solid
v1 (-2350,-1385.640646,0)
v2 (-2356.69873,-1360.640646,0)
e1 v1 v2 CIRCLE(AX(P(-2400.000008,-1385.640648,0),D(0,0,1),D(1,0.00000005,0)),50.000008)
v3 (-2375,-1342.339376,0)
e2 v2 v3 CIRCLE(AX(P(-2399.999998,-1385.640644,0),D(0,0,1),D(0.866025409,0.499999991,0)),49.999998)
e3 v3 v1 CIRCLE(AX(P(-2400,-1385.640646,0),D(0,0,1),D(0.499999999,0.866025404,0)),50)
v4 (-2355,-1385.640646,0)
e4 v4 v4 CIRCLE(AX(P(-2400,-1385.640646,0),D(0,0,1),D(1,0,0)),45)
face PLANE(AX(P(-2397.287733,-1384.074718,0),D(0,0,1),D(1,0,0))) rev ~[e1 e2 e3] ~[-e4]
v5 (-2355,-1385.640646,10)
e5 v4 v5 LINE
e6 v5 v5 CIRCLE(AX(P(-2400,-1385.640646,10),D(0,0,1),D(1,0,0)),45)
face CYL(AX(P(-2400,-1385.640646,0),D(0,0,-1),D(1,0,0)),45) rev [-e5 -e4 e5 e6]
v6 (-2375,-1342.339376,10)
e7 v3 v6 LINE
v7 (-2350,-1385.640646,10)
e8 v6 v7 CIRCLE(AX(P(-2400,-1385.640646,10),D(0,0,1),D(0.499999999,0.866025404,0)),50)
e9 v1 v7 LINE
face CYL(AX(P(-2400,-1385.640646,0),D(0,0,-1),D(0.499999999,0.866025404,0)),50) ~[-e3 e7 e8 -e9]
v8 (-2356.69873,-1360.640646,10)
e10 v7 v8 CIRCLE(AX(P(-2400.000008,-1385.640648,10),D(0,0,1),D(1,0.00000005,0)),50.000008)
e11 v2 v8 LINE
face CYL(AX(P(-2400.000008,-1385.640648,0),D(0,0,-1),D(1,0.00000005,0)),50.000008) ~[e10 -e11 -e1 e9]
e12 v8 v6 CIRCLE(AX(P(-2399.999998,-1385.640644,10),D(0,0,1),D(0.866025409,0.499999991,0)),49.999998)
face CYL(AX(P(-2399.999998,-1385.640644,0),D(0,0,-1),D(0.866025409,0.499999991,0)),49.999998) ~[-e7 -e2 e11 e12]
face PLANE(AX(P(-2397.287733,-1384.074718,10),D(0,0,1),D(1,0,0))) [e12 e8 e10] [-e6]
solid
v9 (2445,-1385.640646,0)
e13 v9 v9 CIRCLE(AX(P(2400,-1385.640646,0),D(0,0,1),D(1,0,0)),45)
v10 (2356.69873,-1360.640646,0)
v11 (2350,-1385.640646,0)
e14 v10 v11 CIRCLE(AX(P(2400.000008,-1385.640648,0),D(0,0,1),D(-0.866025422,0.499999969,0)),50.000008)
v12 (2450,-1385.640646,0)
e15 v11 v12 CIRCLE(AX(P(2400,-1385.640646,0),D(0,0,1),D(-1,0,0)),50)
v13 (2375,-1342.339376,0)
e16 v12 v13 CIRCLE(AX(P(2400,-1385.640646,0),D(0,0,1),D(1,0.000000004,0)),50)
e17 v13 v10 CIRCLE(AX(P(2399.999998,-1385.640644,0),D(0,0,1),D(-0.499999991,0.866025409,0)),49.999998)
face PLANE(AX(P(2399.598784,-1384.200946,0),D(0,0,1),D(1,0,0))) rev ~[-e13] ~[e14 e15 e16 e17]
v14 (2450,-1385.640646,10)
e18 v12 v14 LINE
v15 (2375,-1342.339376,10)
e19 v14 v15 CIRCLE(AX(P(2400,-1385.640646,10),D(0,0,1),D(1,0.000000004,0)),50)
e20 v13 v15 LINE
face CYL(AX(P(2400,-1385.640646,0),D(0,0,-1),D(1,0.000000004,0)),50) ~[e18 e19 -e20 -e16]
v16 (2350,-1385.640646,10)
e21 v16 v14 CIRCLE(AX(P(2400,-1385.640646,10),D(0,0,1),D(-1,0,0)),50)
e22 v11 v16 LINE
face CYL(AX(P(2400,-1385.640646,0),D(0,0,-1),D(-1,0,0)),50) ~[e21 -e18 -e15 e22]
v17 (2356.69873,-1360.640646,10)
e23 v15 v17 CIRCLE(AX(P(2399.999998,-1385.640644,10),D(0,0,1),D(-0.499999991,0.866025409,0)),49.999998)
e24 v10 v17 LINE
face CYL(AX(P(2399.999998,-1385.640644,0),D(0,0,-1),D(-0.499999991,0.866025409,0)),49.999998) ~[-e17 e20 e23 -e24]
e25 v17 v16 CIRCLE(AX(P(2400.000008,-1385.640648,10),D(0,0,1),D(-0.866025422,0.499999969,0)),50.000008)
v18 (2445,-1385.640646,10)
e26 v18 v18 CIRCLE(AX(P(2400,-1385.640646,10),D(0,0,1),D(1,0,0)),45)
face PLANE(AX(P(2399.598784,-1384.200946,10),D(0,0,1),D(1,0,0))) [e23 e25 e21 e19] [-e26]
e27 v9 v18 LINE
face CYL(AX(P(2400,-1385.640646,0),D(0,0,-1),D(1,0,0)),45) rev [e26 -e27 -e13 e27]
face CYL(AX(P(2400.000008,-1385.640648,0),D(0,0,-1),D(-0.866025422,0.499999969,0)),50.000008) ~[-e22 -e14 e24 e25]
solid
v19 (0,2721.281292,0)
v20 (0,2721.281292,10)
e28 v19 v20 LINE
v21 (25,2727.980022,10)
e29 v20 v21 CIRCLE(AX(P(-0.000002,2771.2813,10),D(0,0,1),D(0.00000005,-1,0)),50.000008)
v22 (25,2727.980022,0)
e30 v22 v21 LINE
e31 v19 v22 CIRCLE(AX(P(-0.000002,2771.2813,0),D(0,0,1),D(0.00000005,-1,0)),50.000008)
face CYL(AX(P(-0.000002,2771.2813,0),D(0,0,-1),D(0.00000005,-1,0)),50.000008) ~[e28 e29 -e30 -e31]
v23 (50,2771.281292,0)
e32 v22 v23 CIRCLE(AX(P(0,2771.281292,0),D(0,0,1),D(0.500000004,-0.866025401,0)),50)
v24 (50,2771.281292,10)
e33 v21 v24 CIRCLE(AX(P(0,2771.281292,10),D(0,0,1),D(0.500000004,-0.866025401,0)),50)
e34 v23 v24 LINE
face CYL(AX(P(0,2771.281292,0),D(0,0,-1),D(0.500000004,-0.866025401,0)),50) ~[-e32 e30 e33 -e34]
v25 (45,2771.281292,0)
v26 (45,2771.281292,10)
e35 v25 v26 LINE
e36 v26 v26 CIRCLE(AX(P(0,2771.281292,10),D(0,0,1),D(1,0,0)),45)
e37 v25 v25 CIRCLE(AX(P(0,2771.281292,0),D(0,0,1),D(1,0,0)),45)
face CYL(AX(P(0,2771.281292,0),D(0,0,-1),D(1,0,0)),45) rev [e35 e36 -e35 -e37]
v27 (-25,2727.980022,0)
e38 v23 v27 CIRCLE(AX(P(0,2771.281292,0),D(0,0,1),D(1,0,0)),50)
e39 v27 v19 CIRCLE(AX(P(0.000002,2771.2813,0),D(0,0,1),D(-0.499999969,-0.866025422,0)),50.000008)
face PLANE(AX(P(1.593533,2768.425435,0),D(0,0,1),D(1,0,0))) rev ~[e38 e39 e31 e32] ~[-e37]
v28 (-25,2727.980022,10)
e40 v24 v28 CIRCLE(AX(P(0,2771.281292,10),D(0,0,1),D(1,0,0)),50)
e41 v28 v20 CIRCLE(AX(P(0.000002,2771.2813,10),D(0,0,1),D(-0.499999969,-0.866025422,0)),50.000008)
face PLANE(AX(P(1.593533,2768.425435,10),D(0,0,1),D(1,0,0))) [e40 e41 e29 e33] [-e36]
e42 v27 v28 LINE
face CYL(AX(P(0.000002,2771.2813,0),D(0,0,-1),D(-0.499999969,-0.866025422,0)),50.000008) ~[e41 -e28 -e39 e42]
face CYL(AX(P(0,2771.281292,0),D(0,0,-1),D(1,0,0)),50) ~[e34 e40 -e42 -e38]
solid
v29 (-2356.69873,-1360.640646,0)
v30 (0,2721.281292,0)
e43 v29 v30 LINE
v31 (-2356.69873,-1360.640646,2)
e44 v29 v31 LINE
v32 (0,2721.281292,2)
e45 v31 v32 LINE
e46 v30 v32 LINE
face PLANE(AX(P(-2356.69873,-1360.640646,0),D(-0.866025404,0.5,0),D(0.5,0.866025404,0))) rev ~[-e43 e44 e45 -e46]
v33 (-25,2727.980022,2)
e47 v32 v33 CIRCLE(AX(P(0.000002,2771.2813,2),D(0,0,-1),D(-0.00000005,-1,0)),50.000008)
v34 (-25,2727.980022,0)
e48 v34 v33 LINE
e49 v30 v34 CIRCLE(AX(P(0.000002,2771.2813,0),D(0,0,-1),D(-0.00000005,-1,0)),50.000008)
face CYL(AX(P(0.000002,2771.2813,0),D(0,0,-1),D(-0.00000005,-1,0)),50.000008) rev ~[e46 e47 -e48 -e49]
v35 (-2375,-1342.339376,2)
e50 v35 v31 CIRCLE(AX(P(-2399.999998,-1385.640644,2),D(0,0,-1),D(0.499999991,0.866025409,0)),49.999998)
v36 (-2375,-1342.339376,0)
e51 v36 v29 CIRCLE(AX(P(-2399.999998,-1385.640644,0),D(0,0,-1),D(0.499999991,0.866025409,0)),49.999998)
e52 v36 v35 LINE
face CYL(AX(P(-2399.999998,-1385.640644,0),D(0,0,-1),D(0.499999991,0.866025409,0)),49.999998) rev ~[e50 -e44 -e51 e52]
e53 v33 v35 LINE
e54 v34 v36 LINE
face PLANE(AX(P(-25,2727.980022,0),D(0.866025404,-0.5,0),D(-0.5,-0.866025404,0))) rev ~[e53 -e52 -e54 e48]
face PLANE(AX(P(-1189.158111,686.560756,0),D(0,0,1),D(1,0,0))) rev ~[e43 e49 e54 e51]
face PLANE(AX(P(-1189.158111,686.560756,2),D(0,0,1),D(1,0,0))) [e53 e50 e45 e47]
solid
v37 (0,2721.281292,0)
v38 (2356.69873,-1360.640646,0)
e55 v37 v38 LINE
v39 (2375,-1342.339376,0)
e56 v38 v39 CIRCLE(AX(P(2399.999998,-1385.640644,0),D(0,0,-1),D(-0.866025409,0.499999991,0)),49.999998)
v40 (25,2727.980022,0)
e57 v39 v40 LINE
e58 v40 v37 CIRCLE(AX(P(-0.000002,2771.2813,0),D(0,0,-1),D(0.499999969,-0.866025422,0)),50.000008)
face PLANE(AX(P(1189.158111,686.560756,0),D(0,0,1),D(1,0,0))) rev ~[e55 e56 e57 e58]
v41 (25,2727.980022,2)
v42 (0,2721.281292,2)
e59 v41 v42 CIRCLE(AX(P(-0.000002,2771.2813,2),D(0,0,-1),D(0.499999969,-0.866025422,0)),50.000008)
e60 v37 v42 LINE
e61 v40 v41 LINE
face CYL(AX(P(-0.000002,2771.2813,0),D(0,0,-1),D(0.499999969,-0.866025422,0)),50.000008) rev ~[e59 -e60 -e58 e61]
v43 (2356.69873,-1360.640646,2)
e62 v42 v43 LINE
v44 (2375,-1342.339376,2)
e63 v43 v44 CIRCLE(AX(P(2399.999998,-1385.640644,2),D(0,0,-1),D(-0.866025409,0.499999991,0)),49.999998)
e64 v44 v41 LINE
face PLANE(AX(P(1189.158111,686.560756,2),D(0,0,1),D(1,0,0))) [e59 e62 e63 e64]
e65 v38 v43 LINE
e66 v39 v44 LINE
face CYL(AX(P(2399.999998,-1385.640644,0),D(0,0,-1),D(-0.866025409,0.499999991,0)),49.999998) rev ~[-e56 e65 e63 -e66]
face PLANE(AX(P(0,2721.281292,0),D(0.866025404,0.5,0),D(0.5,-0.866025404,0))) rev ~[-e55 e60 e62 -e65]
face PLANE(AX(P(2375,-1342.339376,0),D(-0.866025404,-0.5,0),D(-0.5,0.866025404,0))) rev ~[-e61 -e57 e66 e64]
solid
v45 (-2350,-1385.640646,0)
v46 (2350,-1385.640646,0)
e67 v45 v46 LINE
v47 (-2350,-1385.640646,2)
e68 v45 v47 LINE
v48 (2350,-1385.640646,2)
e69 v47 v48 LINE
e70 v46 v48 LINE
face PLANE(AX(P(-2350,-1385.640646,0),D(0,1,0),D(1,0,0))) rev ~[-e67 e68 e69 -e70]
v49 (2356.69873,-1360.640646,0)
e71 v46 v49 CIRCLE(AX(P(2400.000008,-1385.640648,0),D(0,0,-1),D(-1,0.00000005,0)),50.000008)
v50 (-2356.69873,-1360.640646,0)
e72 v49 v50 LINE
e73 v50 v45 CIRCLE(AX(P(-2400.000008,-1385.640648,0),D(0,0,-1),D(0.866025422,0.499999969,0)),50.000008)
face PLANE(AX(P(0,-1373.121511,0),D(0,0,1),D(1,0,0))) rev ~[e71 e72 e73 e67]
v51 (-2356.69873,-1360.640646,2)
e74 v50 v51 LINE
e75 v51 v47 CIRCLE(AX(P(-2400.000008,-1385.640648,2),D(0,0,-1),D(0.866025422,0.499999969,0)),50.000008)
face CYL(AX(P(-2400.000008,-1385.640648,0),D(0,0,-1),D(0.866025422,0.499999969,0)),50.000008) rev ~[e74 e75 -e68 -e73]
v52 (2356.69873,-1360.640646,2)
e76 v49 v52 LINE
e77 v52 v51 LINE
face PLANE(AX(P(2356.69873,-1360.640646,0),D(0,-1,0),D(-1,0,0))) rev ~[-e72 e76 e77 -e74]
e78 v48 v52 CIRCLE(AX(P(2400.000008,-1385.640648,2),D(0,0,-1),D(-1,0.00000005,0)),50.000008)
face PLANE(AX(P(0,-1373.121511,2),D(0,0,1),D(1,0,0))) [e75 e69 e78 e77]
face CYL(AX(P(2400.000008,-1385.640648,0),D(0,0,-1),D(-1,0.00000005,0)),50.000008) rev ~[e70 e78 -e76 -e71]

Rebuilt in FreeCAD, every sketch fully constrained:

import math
import FreeCAD as App
import Part
import Sketcher
from FreeCAD import Vector
Q = App.Units.Quantity

doc = App.newDocument("Part")
body = doc.addObject("PartDesign::Body", "Body")
body.AllowCompound = True

# Sketch on XY plane
sketch1 = body.newObject("Sketcher::SketchObject", "Sketch")
sketch1.AttachmentSupport = (doc.getObject("XY_Plane"), [""])
sketch1.MapMode = "FlatFace"
sketch1.addGeometry([
    Part.ArcOfCircle(Part.Circle(Vector(-2400, -1386, 0), Vector(0, 0, 1), 50), math.radians(0), math.radians(30)),  # 0
    Part.ArcOfCircle(Part.Circle(Vector(-2400, -1386, 0), Vector(0, 0, 1), 50), math.radians(30), math.radians(60)),  # 1
    Part.ArcOfCircle(Part.Circle(Vector(-2400, -1386, 0), Vector(0, 0, 1), 50), math.radians(60), math.radians(360)),  # 2
    Part.Circle(Vector(-2400, -1386, 0), Vector(0, 0, 1), 45),  # 3
    Part.ArcOfCircle(Part.Circle(Vector(2400, -1386, 0), Vector(0, 0, 1), 50), math.radians(0), math.radians(120)),  # 4
    Part.ArcOfCircle(Part.Circle(Vector(2400, -1386, 0), Vector(0, 0, 1), 50), math.radians(120), math.radians(150)),  # 5
    Part.ArcOfCircle(Part.Circle(Vector(2400, -1386, 0), Vector(0, 0, 1), 50), math.radians(150), math.radians(180)),  # 6
    Part.ArcOfCircle(Part.Circle(Vector(2400, -1386, 0), Vector(0, 0, 1), 50), math.radians(180), math.radians(360)),  # 7
    Part.Circle(Vector(2400, -1386, 0), Vector(0, 0, 1), 45),  # 8
    Part.ArcOfCircle(Part.Circle(Vector(0, 2771, 0), Vector(0, 0, 1), 50), math.radians(-90), math.radians(-60)),  # 9
    Part.ArcOfCircle(Part.Circle(Vector(0, 2771, 0), Vector(0, 0, 1), 50), math.radians(-60), math.radians(0)),  # 10
    Part.ArcOfCircle(Part.Circle(Vector(0, 2771, 0), Vector(0, 0, 1), 50), math.radians(0), math.radians(240)),  # 11
    Part.ArcOfCircle(Part.Circle(Vector(0, 2771, 0), Vector(0, 0, 1), 50), math.radians(-120), math.radians(-90)),  # 12
    Part.Circle(Vector(0, 2771, 0), Vector(0, 0, 1), 45),  # 13
], False)
sketch1.addConstraint([
    Sketcher.Constraint("Tangent", 0, 2, 1, 1),
    Sketcher.Constraint("Tangent", 1, 2, 2, 1),
    Sketcher.Constraint("Tangent", 2, 2, 0, 1),
    Sketcher.Constraint("Tangent", 4, 2, 5, 1),
    Sketcher.Constraint("Tangent", 5, 2, 6, 1),
    Sketcher.Constraint("Tangent", 6, 2, 7, 1),
    Sketcher.Constraint("Tangent", 7, 2, 4, 1),
    Sketcher.Constraint("Tangent", 9, 2, 10, 1),
    Sketcher.Constraint("Tangent", 10, 2, 11, 1),
    Sketcher.Constraint("Tangent", 11, 2, 12, 1),
    Sketcher.Constraint("Tangent", 12, 2, 9, 1),
    Sketcher.Constraint("Coincident", 3, 3, 0, 3),
    Sketcher.Constraint("Coincident", 8, 3, 4, 3),
    Sketcher.Constraint("Coincident", 13, 3, 9, 3),
    Sketcher.Constraint("Equal", 2, 4),
    Sketcher.Constraint("Equal", 1, 5),
    Sketcher.Constraint("Equal", 3, 8),
    Sketcher.Constraint("Equal", 6, 9),
    Sketcher.Constraint("Equal", 7, 10),
    Sketcher.Constraint("Equal", 8, 13),
    Sketcher.Constraint("Symmetric", 0, 3, 4, 3, -2),
    Sketcher.Constraint("Symmetric", 9, 2, 11, 2, -2),
    Sketcher.Constraint("PointOnObject", 12, 2, -2),
    Sketcher.Constraint("Horizontal", 8, 3, 2, 2),
    Sketcher.Constraint("Horizontal", 1, 2, 4, 2),
    Sketcher.Constraint("Horizontal", 0, 2, 5, 2),
    Sketcher.Constraint("Horizontal", 2, 2, 6, 2),
    Sketcher.Constraint("Horizontal", 6, 2, 7, 2),
    Sketcher.Constraint("Horizontal", 13, 3, 10, 2),
    Sketcher.Constraint("Diameter", 3, 90.0),
    Sketcher.Constraint("Radius", 2, 50.0),
    Sketcher.Constraint("DistanceX", 1, 3, -1, 1, 2399.999998),
    Sketcher.Constraint("DistanceX", 1, 2, -1, 1, 2375.0),
    Sketcher.Constraint("DistanceX", -1, 1, 9, 2, 25.0),
    Sketcher.Constraint("DistanceY", 1, 3, 0, 2, 24.999998),
    Sketcher.Constraint("DistanceY", -1, 1, 9, 3, 2771.2813),
    Sketcher.Constraint("DistanceY", 0, 3, -1, 1, 1385.640648),
])
pad1 = body.newObject("PartDesign::Pad", "Pad")
pad1.Profile = sketch1
pad1.Length = 10
body2 = doc.addObject("PartDesign::Body", "Body001")
body2.AllowCompound = True

# Sketch on XY plane
sketch2 = body2.newObject("Sketcher::SketchObject", "Sketch001")
sketch2.AttachmentSupport = (doc.getObject("XY_Plane001"), [""])
sketch2.MapMode = "FlatFace"
sketch2.addGeometry([
    Part.LineSegment(Vector(-2357, -1361, 0), Vector(0, 2721, 0)),  # 0
    Part.ArcOfCircle(Part.Circle(Vector(0, 2771, 0), Vector(0, 0, 1), 50), math.radians(-120), math.radians(-90)),  # 1
    Part.LineSegment(Vector(-25, 2728, 0), Vector(-2375, -1342, 0)),  # 2
    Part.ArcOfCircle(Part.Circle(Vector(-2400, -1386, 0), Vector(0, 0, 1), 50), math.radians(30), math.radians(60)),  # 3
    Part.LineSegment(Vector(2375, -1342, 0), Vector(25, 2728, 0)),  # 4
    Part.ArcOfCircle(Part.Circle(Vector(0, 2771, 0), Vector(0, 0, 1), 50), math.radians(-90), math.radians(-60)),  # 5
    Part.LineSegment(Vector(0, 2721, 0), Vector(2357, -1361, 0)),  # 6
    Part.ArcOfCircle(Part.Circle(Vector(2400, -1386, 0), Vector(0, 0, 1), 50), math.radians(120), math.radians(150)),  # 7
    Part.ArcOfCircle(Part.Circle(Vector(2400, -1386, 0), Vector(0, 0, 1), 50), math.radians(150), math.radians(180)),  # 8
    Part.LineSegment(Vector(2357, -1361, 0), Vector(-2357, -1361, 0)),  # 9
    Part.ArcOfCircle(Part.Circle(Vector(-2400, -1386, 0), Vector(0, 0, 1), 50), math.radians(0), math.radians(30)),  # 10
    Part.LineSegment(Vector(-2350, -1386, 0), Vector(2350, -1386, 0)),  # 11
], False)
sketch2.addConstraint([
    Sketcher.Constraint("Coincident", 0, 2, 1, 2),
    Sketcher.Constraint("Coincident", 1, 1, 2, 1),
    Sketcher.Constraint("Coincident", 2, 2, 3, 2),
    Sketcher.Constraint("Coincident", 3, 1, 0, 1),
    Sketcher.Constraint("Coincident", 4, 2, 5, 2),
    Sketcher.Constraint("Coincident", 5, 1, 6, 1),
    Sketcher.Constraint("Coincident", 6, 2, 7, 2),
    Sketcher.Constraint("Coincident", 7, 1, 4, 1),
    Sketcher.Constraint("Coincident", 8, 1, 9, 1),
    Sketcher.Constraint("Coincident", 9, 2, 10, 2),
    Sketcher.Constraint("Coincident", 10, 1, 11, 1),
    Sketcher.Constraint("Coincident", 11, 2, 8, 2),
    Sketcher.Constraint("Horizontal", 9),
    Sketcher.Constraint("Horizontal", 11),
    Sketcher.Constraint("Coincident", 5, 3, 1, 3),
    Sketcher.Constraint("Coincident", 5, 1, 0, 2),
    Sketcher.Constraint("Coincident", 8, 1, 6, 2),
    Sketcher.Constraint("Coincident", 9, 2, 3, 1),
    Sketcher.Constraint("Equal", 3, 7),
    Sketcher.Constraint("Equal", 5, 8),
    Sketcher.Constraint("Equal", 8, 10),
    Sketcher.Constraint("Symmetric", 3, 3, 7, 3, -2),
    Sketcher.Constraint("Symmetric", 1, 1, 4, 2, -2),
    Sketcher.Constraint("PointOnObject", 0, 2, -2),
    Sketcher.Constraint("Parallel", 0, 2),
    Sketcher.Constraint("Parallel", 4, 6),
    Sketcher.Constraint("Horizontal", 8, 3, 10, 3),
    Sketcher.Constraint("Horizontal", 7, 3, 10, 1),
    Sketcher.Constraint("DistanceX", 11, 1, 11, 2, 4700.0),
    Sketcher.Constraint("Angle", 0, Q("60 deg")),
    Sketcher.Constraint("Distance", 2, 4700.0),
    Sketcher.Constraint("DistanceX", 3, 3, -1, 1, 2399.999998),
    Sketcher.Constraint("DistanceX", 1, 1, -1, 1, 25.0),
    Sketcher.Constraint("DistanceY", 3, 3, 3, 1, 24.999998),
    Sketcher.Constraint("Radius", 1, 50.000008),
    Sketcher.Constraint("DistanceY", -1, 1, 1, 3, 2771.2813),
])
pad2 = body2.newObject("PartDesign::Pad", "Pad001")
pad2.Profile = sketch2
pad2.Length = 2

doc.recompute()
